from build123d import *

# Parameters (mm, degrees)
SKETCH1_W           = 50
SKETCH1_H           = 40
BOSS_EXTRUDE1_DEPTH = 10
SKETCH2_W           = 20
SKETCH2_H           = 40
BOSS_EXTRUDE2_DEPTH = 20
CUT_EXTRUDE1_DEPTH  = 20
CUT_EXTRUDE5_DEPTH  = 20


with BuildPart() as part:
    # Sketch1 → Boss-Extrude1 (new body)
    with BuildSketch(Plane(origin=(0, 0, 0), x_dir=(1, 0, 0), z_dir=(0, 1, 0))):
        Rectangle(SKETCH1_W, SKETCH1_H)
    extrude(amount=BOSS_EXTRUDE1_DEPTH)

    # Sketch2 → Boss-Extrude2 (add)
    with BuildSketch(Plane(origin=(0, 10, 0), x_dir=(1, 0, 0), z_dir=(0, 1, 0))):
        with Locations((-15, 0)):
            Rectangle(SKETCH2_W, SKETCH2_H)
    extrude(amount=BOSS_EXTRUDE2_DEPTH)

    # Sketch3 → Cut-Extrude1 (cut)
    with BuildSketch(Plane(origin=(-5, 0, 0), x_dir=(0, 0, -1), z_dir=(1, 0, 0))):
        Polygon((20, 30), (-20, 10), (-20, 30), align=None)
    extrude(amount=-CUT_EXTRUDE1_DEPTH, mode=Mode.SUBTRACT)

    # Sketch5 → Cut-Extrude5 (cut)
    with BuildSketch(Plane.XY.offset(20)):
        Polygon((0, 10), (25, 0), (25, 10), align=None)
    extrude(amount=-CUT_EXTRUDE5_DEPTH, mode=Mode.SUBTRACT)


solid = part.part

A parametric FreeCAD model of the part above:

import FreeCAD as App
import Part
import Sketcher

V = App.Vector


def add_polygon(sketch, points):
    """Adds a closed chain of lines whose ends are joined by coincident constraints."""
    first, n = sketch.GeometryCount, len(points)
    for a, b in zip(points, points[1:] + points[:1]):
        sketch.addGeometry(Part.LineSegment(App.Vector(*a, 0), App.Vector(*b, 0)), False)
    for i in range(n):
        sketch.addConstraint(Sketcher.Constraint("Coincident", first + i, 2, first + (i + 1) % n, 1))

doc = App.newDocument("Part")
body = doc.addObject("PartDesign::Body", "Body")

sketch1 = body.newObject("Sketcher::SketchObject", "Sketch")
sketch1.AttachmentSupport = (doc.getObject("XZ_Plane"), [""])
sketch1.MapMode = "FlatFace"
add_polygon(sketch1, [(-25, -20), (-25, 20), (25, 20), (25, -20)])
sketch1.addConstraint([
    Sketcher.Constraint("Vertical", 0),
    Sketcher.Constraint("Horizontal", 1),
    Sketcher.Constraint("Vertical", 2),
    Sketcher.Constraint("Horizontal", 3),
    Sketcher.Constraint("Symmetric", 0, 2, 2, 2, -1, 1),
    Sketcher.Constraint("DistanceX", 1, 1, 1, 2, 50.0),
    Sketcher.Constraint("DistanceY", 0, 1, 0, 2, 40.0),
])
pad1 = body.newObject("PartDesign::Pad", "Pad")
pad1.Profile = sketch1
pad1.Length = 10
pad1.Reversed = True

sketch2 = body.newObject("Sketcher::SketchObject", "Sketch001")
sketch2.AttachmentSupport = (doc.getObject("XZ_Plane"), [""])
sketch2.MapMode = "FlatFace"
sketch2.AttachmentOffset = App.Placement(V(0, 0, -10), App.Rotation())
add_polygon(sketch2, [(-25, -20), (-25, 20), (-5, 20), (-5, -20)])
sketch2.addConstraint([
    Sketcher.Constraint("Vertical", 0),
    Sketcher.Constraint("Horizontal", 1),
    Sketcher.Constraint("Vertical", 2),
    Sketcher.Constraint("Horizontal", 3),
    Sketcher.Constraint("DistanceX", 1, 1, 1, 2, 20.0),
    Sketcher.Constraint("DistanceY", 0, 1, 0, 2, 40.0),
    Sketcher.Constraint("DistanceX", 0, 2, -1, 1, 25.0),
    Sketcher.Constraint("DistanceY", -1, 1, 0, 2, 20.0),
])
pad2 = body.newObject("PartDesign::Pad", "Pad001")
pad2.Profile = sketch2
pad2.Length = 20
pad2.Reversed = True

sketch3 = body.newObject("Sketcher::SketchObject", "Sketch002")
sketch3.AttachmentSupport = (doc.getObject("YZ_Plane"), [""])
sketch3.MapMode = "FlatFace"
sketch3.AttachmentOffset = App.Placement(V(0, 0, -5), App.Rotation())
add_polygon(sketch3, [(10, 20), (30, -20), (30, 20)])
sketch3.addConstraint([
    Sketcher.Constraint("Vertical", 1),
    Sketcher.Constraint("Horizontal", 2),
    Sketcher.Constraint("DistanceX", 2, 2, 2, 1, 20.0),
    Sketcher.Constraint("DistanceY", 1, 1, 1, 2, 40.0),
    Sketcher.Constraint("DistanceX", -1, 1, 0, 2, 30.0),
    Sketcher.Constraint("DistanceY", 0, 2, -1, 1, 20.0),
])
pocket1 = body.newObject("PartDesign::Pocket", "Pocket")
pocket1.Profile = sketch3
pocket1.Length = 20

sketch4 = body.newObject("Sketcher::SketchObject", "Sketch003")
sketch4.AttachmentSupport = (doc.getObject("XY_Plane"), [""])
sketch4.MapMode = "FlatFace"
sketch4.AttachmentOffset = App.Placement(V(0, 0, 20), App.Rotation())
add_polygon(sketch4, [(0, 10), (25, 0), (25, 10)])
sketch4.addConstraint([
    Sketcher.Constraint("Vertical", 1),
    Sketcher.Constraint("Horizontal", 2),
    Sketcher.Constraint("PointOnObject", 0, 2, -1),
    Sketcher.Constraint("PointOnObject", 2, 2, -2),
    Sketcher.Constraint("DistanceX", 2, 2, 2, 1, 25.0),
    Sketcher.Constraint("DistanceY", 1, 1, 1, 2, 10.0),
])
pocket2 = body.newObject("PartDesign::Pocket", "Pocket001")
pocket2.Profile = sketch4
pocket2.Length = 20

doc.recompute()
